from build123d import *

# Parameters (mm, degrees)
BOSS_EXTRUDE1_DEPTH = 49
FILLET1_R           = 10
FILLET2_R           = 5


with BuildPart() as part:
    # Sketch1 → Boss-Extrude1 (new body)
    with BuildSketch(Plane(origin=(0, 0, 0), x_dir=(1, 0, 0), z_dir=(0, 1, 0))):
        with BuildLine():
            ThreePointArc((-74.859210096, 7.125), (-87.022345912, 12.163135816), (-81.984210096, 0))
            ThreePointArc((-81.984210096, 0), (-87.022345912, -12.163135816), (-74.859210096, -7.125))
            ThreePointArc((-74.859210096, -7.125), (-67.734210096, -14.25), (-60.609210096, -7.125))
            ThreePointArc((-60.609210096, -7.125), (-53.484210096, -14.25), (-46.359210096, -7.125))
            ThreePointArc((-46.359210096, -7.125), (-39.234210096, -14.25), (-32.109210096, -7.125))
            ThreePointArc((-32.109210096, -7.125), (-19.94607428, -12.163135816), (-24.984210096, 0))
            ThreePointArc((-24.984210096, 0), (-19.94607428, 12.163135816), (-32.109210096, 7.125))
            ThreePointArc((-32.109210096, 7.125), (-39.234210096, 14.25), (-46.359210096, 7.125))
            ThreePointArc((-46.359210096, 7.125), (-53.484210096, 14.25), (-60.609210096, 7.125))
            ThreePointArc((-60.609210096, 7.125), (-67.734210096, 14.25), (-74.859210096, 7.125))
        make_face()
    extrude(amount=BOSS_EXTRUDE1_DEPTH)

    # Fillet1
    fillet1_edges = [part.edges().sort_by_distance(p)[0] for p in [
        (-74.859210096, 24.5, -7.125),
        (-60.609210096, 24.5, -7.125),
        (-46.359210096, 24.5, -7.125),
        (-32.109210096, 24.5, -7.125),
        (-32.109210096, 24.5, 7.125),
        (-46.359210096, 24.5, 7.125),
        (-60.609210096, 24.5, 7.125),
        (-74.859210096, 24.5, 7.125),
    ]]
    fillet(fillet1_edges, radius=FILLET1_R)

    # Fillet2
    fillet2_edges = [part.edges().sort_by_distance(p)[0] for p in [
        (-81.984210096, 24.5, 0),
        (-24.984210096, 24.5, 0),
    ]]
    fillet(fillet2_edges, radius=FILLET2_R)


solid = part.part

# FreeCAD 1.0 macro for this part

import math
import FreeCAD as App
import Part
import Sketcher
Q = App.Units.Quantity


def edges_at(feature, points):
    """Names of the edges that pass closest to the given points."""
    edges = feature.Shape.Edges
    near = lambda p: min(range(len(edges)), key=lambda i: edges[i].distToShape(Part.Vertex(*p))[0])
    return sorted({f"Edge{near(p) + 1}" for p in points})

doc = App.newDocument("Part")
params = doc.addObject("Spreadsheet::Sheet", "Params")
for row, (alias, value) in enumerate([
    ("pad1_length", "49 mm"),
    ("fillet_radius", "10 mm"),
    ("fillet2_radius", "5 mm"),
], start=1):
    params.set(f"A{row}", alias)
    params.set(f"B{row}", "=" + value)
    params.setAlias(f"B{row}", alias)

body = doc.addObject("PartDesign::Body", "Body")

sketch1 = body.newObject("Sketcher::SketchObject", "Sketch")
sketch1.AttachmentSupport = (doc.getObject("XZ_Plane"), [""])
sketch1.MapMode = "FlatFace"
sketch1.addGeometry(Part.ArcOfCircle(Part.Circle(App.Vector(-81.98421, -7.125, 0), App.Vector(0, 0, 1), 7.125), math.radians(90), math.radians(360)), False)
sketch1.addGeometry(Part.ArcOfCircle(Part.Circle(App.Vector(-81.98421, 7.125, 0), App.Vector(0, 0, 1), 7.125), math.radians(0), math.radians(270)), False)
sketch1.addGeometry(Part.ArcOfCircle(Part.Circle(App.Vector(-67.73421, 7.125, 0), App.Vector(0, 0, 1), 7.125), math.radians(0), math.radians(180)), False)
sketch1.addGeometry(Part.ArcOfCircle(Part.Circle(App.Vector(-53.48421, 7.125, 0), App.Vector(0, 0, 1), 7.125), math.radians(0), math.radians(180)), False)
sketch1.addGeometry(Part.ArcOfCircle(Part.Circle(App.Vector(-39.23421, 7.125, 0), App.Vector(0, 0, 1), 7.125), math.radians(0), math.radians(180)), False)
sketch1.addGeometry(Part.ArcOfCircle(Part.Circle(App.Vector(-24.98421, 7.125, 0), App.Vector(0, 0, 1), 7.125), math.radians(-90), math.radians(180)), False)
sketch1.addGeometry(Part.ArcOfCircle(Part.Circle(App.Vector(-24.98421, -7.125, 0), App.Vector(0, 0, 1), 7.125), math.radians(180), math.radians(450)), False)
sketch1.addGeometry(Part.ArcOfCircle(Part.Circle(App.Vector(-39.23421, -7.125, 0), App.Vector(0, 0, 1), 7.125), math.radians(180), math.radians(360)), False)
sketch1.addGeometry(Part.ArcOfCircle(Part.Circle(App.Vector(-53.48421, -7.125, 0), App.Vector(0, 0, 1), 7.125), math.radians(180), math.radians(360)), False)
sketch1.addGeometry(Part.ArcOfCircle(Part.Circle(App.Vector(-67.73421, -7.125, 0), App.Vector(0, 0, 1), 7.125), math.radians(180), math.radians(360)), False)
sketch1.addConstraint(Sketcher.Constraint("Tangent", 0, 1, 1, 2))
sketch1.addConstraint(Sketcher.Constraint("Tangent", 1, 1, 2, 2))
sketch1.addConstraint(Sketcher.Constraint("Tangent", 2, 1, 3, 2))
sketch1.addConstraint(Sketcher.Constraint("Tangent", 3, 1, 4, 2))
sketch1.addConstraint(Sketcher.Constraint("Tangent", 4, 1, 5, 2))
sketch1.addConstraint(Sketcher.Constraint("Tangent", 5, 1, 6, 2))
sketch1.addConstraint(Sketcher.Constraint("Tangent", 6, 1, 7, 2))
sketch1.addConstraint(Sketcher.Constraint("Tangent", 7, 1, 8, 2))
sketch1.addConstraint(Sketcher.Constraint("Tangent", 8, 1, 9, 2))
sketch1.addConstraint(Sketcher.Constraint("Tangent", 9, 1, 0, 2))
sketch1.addConstraint(Sketcher.Constraint("Equal", 0, 1))
sketch1.addConstraint(Sketcher.Constraint("Equal", 1, 2))
sketch1.addConstraint(Sketcher.Constraint("Equal", 2, 3))
sketch1.addConstraint(Sketcher.Constraint("Equal", 3, 4))
sketch1.addConstraint(Sketcher.Constraint("Equal", 4, 5))
sketch1.addConstraint(Sketcher.Constraint("Equal", 5, 6))
sketch1.addConstraint(Sketcher.Constraint("Equal", 6, 7))
sketch1.addConstraint(Sketcher.Constraint("Equal", 7, 8))
sketch1.addConstraint(Sketcher.Constraint("Equal", 8, 9))
sketch1.addConstraint(Sketcher.Constraint("Symmetric", 0, 3, 1, 3, -1))
sketch1.addConstraint(Sketcher.Constraint("PointOnObject", 5, 1, -1))
sketch1.addConstraint(Sketcher.Constraint("Horizontal", 1, 3, 2, 3))
sketch1.addConstraint(Sketcher.Constraint("Horizontal", 2, 3, 3, 3))
sketch1.addConstraint(Sketcher.Constraint("Horizontal", 3, 3, 4, 3))
sketch1.addConstraint(Sketcher.Constraint("Horizontal", 6, 3, 7, 3))
sketch1.addConstraint(Sketcher.Constraint("Horizontal", 7, 3, 8, 3))
sketch1.addConstraint(Sketcher.Constraint("Horizontal", 8, 3, 9, 3))
sketch1.addConstraint(Sketcher.Constraint("Radius", 0, Q("7.125 mm")))
sketch1.addConstraint(Sketcher.Constraint("DistanceX", 0, 3, -1, 1, Q("81.98421 mm")))
pad1 = body.newObject("PartDesign::Pad", "Pad")
pad1.Profile = sketch1
pad1.setExpression("Length", "Params.pad1_length")
pad1.Reversed = True
doc.recompute()

fillet = body.newObject("PartDesign::Fillet", "Fillet")
fillet.Base = (pad1, edges_at(pad1, [
    (-74.859, 24.5, -7.125),
    (-60.609, 24.5, -7.125),
    (-46.359, 24.5, -7.125),
    (-32.109, 24.5, -7.125),
    (-32.109, 24.5, 7.125),
    (-46.359, 24.5, 7.125),
    (-60.609, 24.5, 7.125),
    (-74.859, 24.5, 7.125),
]))
fillet.setExpression("Radius", "Params.fillet_radius")
doc.recompute()

fillet2 = body.newObject("PartDesign::Fillet", "Fillet001")
fillet2.Base = (fillet, edges_at(fillet, [(-81.984, 24.5, 0), (-24.984, 24.5, 0)]))
fillet2.setExpression("Radius", "Params.fillet2_radius")

doc.recompute()
